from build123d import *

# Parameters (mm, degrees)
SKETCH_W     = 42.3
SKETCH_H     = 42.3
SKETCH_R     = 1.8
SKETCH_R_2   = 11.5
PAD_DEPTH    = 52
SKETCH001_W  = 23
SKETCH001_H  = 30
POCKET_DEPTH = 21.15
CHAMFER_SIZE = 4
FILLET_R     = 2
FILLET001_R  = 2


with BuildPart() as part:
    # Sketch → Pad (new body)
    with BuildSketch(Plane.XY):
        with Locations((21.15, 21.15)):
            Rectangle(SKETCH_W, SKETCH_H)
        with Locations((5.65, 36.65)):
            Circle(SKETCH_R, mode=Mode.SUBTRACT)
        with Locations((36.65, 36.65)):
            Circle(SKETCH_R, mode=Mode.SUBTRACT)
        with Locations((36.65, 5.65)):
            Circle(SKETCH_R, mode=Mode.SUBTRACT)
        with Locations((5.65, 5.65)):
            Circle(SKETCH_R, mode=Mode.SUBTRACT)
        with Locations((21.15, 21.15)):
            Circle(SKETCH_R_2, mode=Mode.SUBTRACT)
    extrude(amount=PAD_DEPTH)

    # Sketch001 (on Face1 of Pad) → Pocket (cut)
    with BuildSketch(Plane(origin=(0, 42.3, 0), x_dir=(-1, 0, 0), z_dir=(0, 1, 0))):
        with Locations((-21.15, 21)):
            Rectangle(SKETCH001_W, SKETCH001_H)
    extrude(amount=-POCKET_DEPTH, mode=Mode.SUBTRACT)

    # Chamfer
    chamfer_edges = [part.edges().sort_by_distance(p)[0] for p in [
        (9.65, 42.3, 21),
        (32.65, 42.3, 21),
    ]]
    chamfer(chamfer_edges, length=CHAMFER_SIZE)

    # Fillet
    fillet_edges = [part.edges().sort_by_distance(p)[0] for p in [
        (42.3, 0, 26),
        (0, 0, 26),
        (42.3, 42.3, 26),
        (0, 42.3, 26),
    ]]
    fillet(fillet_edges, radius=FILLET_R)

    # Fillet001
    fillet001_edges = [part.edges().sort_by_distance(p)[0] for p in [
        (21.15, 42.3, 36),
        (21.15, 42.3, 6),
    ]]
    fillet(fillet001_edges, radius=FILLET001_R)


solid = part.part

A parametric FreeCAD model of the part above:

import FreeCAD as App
import Part
import Sketcher

V = App.Vector
Q = App.Units.Quantity


def edges_at(feature, points):
    """Names of the edges that pass closest to the given points."""
    edges = feature.Shape.Edges
    near = lambda p: min(range(len(edges)), key=lambda i: edges[i].distToShape(Part.Vertex(*p))[0])
    return sorted({f"Edge{near(p) + 1}" for p in points})


def add_polygon(sketch, points):
    """Adds a closed chain of lines whose ends are joined by coincident constraints."""
    first, n = sketch.GeometryCount, len(points)
    for a, b in zip(points, points[1:] + points[:1]):
        sketch.addGeometry(Part.LineSegment(App.Vector(*a, 0), App.Vector(*b, 0)), False)
    for i in range(n):
        sketch.addConstraint(Sketcher.Constraint("Coincident", first + i, 2, first + (i + 1) % n, 1))

doc = App.newDocument("Part")
body = doc.addObject("PartDesign::Body", "Body")

# Sketch on XY plane
sketch1 = doc.addObject("Sketcher::SketchObject", "Sketch")
body.addObject(sketch1)
sketch1.AttachmentSupport = (doc.XY_Plane, [""])
sketch1.MapMode = "FlatFace"
add_polygon(sketch1, [(0, 42.3), (0, 0), (42.3, 0), (42.3, 42.3)])  # lines 0-3
sketch1.addGeometry(Part.Circle(V(5.7, 5.7, 0), V(0, 0, 1), 1.8), False)  # 4
sketch1.addGeometry(Part.Circle(V(36.6, 5.7, 0), V(0, 0, 1), 1.8), False)  # 5
sketch1.addGeometry(Part.Circle(V(5.7, 36.6, 0), V(0, 0, 1), 1.8), False)  # 6
sketch1.addGeometry(Part.Circle(V(21.1, 21.1, 0), V(0, 0, 1), 11.5), False)  # 7
sketch1.addGeometry(Part.Circle(V(36.6, 36.6, 0), V(0, 0, 1), 1.8), False)  # 8
sketch1.addConstraint([
    Sketcher.Constraint("Vertical", 0),
    Sketcher.Constraint("Horizontal", 1),
    Sketcher.Constraint("Vertical", 2),
    Sketcher.Constraint("Horizontal", 3),
    Sketcher.Constraint("Coincident", 0, 2, -1, 1),
    Sketcher.Constraint("Equal", 4, 5),
    Sketcher.Constraint("Equal", 5, 6),
    Sketcher.Constraint("Equal", 6, 8),
    Sketcher.Constraint("Horizontal", 4, 3, 5, 3),
    Sketcher.Constraint("Horizontal", 6, 3, 8, 3),
    Sketcher.Constraint("Vertical", 4, 3, 6, 3),
    Sketcher.Constraint("Vertical", 5, 3, 8, 3),
    Sketcher.Constraint("Equal", 3, 0),
    Sketcher.Constraint("Diameter", 7, Q("23 mm")),
    Sketcher.Constraint("Diameter", 4, Q("3.6 mm")),
    Sketcher.Constraint("DistanceX", 1, 1, 1, 2, Q("42.3 mm")),
    Sketcher.Constraint("DistanceX", 4, 3, 5, 3, Q("31 mm")),
    Sketcher.Constraint("DistanceY", 4, 3, 6, 3, Q("31 mm")),
    Sketcher.Constraint("DistanceX", 4, 3, 7, 3, Q("15.5 mm")),
    Sketcher.Constraint("DistanceY", 4, 3, 7, 3, Q("15.5 mm")),
    Sketcher.Constraint("DistanceX", -1, 1, 4, 3, Q("5.65 mm")),
    Sketcher.Constraint("DistanceY", -1, 1, 4, 3, Q("5.65 mm")),
])
pad1 = doc.addObject("PartDesign::Pad", "Pad")
body.addObject(pad1)
pad1.Profile = sketch1
pad1.Length = 52

# Sketch on XZ plane
sketch2 = doc.addObject("Sketcher::SketchObject", "Sketch001")
body.addObject(sketch2)
sketch2.AttachmentSupport = (doc.XZ_Plane, [""])
sketch2.MapMode = "FlatFace"
sketch2.AttachmentOffset = App.Placement(V(0, 0, -42.3), App.Rotation())
add_polygon(sketch2, [(33, 36), (33, 6), (10, 6), (10, 36)])  # lines 0-3
sketch2.addConstraint([
    Sketcher.Constraint("Vertical", 0),
    Sketcher.Constraint("Horizontal", 1),
    Sketcher.Constraint("Vertical", 2),
    Sketcher.Constraint("Horizontal", 3),
    Sketcher.Constraint("DistanceX", 1, 2, 1, 1, Q("23 mm")),
    Sketcher.Constraint("DistanceY", 0, 2, 0, 1, Q("30 mm")),
    Sketcher.Constraint("DistanceY", -1, 1, 0, 2, Q("6 mm")),
    Sketcher.Constraint("DistanceX", -1, 1, 0, 2, Q("32.65 mm")),
])
pocket1 = doc.addObject("PartDesign::Pocket", "Pocket")
body.addObject(pocket1)
pocket1.Profile = sketch2
pocket1.Length = 21.15
pocket1.Reversed = True
doc.recompute()

chamfer = doc.addObject("PartDesign::Chamfer", "Chamfer")
body.addObject(chamfer)
chamfer.Base = (pocket1, edges_at(pocket1, [(9.65, 42.3, 21), (32.65, 42.3, 21)]))
chamfer.Size = 4
doc.recompute()

fillet = doc.addObject("PartDesign::Fillet", "Fillet")
body.addObject(fillet)
fillet.Base = (chamfer, edges_at(chamfer, [
    (42.3, 0, 26),
    (0, 0, 26),
    (42.3, 42.3, 26),
    (0, 42.3, 26),
]))
fillet.Radius = 2
doc.recompute()

fillet2 = doc.addObject("PartDesign::Fillet", "Fillet001")
body.addObject(fillet2)
fillet2.Base = (fillet, edges_at(fillet, [(21.15, 42.3, 36), (21.15, 42.3, 6)]))
fillet2.Radius = 2

doc.recompute()
